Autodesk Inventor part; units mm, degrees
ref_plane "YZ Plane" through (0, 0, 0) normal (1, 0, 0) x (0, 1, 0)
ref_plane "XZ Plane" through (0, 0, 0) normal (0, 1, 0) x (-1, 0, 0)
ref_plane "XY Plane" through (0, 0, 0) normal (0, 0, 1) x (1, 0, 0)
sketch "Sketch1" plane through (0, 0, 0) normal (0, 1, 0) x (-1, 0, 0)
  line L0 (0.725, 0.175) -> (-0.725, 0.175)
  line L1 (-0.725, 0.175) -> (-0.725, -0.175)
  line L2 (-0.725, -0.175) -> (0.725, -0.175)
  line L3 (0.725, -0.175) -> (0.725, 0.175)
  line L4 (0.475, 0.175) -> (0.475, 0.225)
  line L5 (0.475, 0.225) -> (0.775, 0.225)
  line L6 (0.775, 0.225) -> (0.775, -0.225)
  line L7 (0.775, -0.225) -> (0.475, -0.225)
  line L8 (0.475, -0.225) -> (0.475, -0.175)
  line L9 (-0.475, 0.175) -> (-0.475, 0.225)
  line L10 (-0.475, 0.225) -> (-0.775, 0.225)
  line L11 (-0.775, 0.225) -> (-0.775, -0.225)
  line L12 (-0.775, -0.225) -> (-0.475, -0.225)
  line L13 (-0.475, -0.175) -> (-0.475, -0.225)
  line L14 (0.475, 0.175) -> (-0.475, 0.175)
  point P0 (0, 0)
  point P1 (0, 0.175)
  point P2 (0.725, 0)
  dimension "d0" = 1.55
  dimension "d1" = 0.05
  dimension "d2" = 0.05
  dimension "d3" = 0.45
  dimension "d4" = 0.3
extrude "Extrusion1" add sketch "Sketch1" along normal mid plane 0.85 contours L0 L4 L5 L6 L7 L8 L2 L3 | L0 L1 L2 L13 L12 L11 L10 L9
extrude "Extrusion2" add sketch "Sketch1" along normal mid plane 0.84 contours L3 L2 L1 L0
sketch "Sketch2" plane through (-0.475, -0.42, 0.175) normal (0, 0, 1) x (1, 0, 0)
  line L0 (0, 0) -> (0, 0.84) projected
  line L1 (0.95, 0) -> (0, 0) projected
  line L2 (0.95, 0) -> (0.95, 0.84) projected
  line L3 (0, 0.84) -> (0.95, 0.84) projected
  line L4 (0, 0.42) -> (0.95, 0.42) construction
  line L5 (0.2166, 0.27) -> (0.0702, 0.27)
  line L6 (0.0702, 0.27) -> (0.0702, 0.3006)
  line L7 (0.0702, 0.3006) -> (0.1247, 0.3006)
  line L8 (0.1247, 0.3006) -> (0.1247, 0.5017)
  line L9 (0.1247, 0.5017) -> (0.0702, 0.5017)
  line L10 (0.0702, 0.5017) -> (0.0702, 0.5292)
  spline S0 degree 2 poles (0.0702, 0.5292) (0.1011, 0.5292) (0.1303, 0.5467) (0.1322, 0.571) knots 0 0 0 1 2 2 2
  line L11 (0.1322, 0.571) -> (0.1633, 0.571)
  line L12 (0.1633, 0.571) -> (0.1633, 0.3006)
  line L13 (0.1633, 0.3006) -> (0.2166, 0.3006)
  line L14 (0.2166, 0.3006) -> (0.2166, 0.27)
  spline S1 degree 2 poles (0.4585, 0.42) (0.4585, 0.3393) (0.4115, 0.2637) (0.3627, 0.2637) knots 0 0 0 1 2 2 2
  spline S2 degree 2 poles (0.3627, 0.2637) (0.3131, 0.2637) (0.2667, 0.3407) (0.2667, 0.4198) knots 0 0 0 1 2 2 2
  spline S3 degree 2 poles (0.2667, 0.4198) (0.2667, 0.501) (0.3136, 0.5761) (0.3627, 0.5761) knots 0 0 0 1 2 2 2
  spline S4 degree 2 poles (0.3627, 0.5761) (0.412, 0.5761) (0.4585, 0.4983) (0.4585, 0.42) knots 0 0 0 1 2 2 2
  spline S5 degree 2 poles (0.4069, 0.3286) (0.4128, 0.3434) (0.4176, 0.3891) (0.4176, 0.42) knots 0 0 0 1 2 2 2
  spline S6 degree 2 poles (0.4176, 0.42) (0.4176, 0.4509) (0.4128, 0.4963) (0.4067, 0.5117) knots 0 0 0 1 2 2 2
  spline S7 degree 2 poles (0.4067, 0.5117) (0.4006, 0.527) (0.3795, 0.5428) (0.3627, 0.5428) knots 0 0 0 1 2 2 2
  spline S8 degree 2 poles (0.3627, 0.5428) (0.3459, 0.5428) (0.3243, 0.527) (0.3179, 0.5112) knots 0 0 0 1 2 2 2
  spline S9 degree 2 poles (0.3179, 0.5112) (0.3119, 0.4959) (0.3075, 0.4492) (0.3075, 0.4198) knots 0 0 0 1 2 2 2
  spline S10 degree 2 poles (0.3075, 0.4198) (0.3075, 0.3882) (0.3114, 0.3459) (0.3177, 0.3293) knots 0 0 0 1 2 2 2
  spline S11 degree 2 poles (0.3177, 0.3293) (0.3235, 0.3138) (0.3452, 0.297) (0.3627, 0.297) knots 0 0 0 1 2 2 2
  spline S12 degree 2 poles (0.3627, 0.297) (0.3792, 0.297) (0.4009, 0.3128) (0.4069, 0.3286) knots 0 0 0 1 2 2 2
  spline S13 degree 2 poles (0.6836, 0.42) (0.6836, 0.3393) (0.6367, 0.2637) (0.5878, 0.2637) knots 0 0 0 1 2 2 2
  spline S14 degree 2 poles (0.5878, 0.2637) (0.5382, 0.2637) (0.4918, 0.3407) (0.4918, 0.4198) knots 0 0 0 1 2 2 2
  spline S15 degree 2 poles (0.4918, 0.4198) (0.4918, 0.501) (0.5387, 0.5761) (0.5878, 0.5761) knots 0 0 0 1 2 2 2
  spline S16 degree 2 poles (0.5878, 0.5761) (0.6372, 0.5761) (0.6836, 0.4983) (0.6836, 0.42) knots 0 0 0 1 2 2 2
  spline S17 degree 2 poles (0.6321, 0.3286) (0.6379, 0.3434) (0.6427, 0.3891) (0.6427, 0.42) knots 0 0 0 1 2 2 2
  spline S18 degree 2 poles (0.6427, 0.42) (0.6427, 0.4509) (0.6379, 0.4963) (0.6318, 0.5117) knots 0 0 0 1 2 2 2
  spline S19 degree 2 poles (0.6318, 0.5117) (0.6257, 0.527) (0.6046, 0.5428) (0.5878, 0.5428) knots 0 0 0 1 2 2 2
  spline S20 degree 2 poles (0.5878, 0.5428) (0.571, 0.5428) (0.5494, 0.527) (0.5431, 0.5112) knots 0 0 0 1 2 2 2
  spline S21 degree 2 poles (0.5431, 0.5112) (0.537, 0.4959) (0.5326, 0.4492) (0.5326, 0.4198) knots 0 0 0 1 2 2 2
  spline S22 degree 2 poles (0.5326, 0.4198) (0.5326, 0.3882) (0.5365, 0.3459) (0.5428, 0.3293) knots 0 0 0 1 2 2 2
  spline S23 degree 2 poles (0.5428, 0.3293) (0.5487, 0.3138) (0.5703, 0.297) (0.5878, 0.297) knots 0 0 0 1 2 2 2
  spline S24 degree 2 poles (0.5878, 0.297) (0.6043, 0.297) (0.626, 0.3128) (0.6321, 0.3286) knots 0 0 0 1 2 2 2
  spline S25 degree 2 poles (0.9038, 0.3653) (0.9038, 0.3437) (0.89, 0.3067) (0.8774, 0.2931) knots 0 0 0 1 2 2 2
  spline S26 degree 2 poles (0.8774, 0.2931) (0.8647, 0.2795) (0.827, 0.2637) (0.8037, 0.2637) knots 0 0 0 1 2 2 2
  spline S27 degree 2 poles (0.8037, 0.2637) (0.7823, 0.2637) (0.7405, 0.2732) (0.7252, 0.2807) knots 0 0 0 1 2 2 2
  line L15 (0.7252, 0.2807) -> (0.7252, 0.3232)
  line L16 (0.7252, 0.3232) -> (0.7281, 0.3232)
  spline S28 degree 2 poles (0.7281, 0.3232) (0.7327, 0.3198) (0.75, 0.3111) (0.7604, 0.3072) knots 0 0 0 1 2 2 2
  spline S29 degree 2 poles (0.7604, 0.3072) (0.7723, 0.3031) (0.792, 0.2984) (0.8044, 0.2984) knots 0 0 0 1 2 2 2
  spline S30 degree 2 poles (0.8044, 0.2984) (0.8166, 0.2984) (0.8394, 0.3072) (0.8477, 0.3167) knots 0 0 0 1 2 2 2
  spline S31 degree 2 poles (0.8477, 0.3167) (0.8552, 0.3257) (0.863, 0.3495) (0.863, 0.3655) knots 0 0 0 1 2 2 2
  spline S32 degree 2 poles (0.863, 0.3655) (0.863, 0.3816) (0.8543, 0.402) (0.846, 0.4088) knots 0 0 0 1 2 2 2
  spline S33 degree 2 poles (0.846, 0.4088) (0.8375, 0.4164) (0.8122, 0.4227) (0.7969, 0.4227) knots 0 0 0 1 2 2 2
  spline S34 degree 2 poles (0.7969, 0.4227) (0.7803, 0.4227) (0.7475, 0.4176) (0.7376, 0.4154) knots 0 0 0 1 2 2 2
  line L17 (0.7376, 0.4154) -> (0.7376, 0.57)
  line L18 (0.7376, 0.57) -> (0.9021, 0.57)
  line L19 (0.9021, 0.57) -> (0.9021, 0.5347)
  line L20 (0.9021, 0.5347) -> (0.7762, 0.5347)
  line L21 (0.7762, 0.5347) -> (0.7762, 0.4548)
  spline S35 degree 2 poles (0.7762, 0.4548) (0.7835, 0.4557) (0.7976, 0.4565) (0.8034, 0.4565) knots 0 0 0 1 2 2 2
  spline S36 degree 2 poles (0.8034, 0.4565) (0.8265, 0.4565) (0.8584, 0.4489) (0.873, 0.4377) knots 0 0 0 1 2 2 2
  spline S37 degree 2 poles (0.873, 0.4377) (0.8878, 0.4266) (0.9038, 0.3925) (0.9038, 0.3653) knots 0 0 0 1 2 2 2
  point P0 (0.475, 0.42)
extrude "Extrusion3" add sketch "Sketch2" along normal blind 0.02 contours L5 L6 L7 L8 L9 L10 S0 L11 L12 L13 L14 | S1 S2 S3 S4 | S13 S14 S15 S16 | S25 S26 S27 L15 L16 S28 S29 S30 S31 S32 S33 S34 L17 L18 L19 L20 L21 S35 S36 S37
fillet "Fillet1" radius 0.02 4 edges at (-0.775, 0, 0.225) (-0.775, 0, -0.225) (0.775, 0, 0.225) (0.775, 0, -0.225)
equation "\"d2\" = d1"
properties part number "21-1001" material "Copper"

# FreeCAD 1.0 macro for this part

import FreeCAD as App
import Part
import Sketcher
from FreeCAD import Vector


def edges_at(feature, points):
    """Names of the edges that pass closest to the given points."""
    edges = feature.Shape.Edges
    near = lambda p: min(range(len(edges)), key=lambda i: edges[i].distToShape(Part.Vertex(*p))[0])
    return sorted({f"Edge{near(p) + 1}" for p in points})

doc = App.newDocument("Part")
body = doc.addObject("PartDesign::Body", "Body")
body.AllowCompound = True

# Sketch on XZ plane
sketch1 = body.newObject("Sketcher::SketchObject", "Sketch")
sketch1.AttachmentSupport = (doc.getObject("XZ_Plane"), [""])
sketch1.MapMode = "FlatFace"
sketch1.addGeometry(Part.LineSegment(Vector(-0.47, 0.17, 0), Vector(-0.72, 0.17, 0)), False)
sketch1.addGeometry(Part.LineSegment(Vector(-0.72, 0.17, 0), Vector(-0.72, -0.17, 0)), False)
sketch1.addGeometry(Part.LineSegment(Vector(-0.72, -0.17, 0), Vector(-0.47, -0.17, 0)), False)
sketch1.addGeometry(Part.LineSegment(Vector(-0.47, -0.17, 0), Vector(-0.47, -0.23, 0)), False)
sketch1.addGeometry(Part.LineSegment(Vector(-0.47, -0.23, 0), Vector(-0.78, -0.23, 0)), False)
sketch1.addGeometry(Part.LineSegment(Vector(-0.78, -0.23, 0), Vector(-0.78, 0.23, 0)), False)
sketch1.addGeometry(Part.LineSegment(Vector(-0.78, 0.23, 0), Vector(-0.47, 0.23, 0)), False)
sketch1.addGeometry(Part.LineSegment(Vector(-0.47, 0.23, 0), Vector(-0.47, 0.17, 0)), False)
sketch1.addGeometry(Part.LineSegment(Vector(0.72, 0.17, 0), Vector(0.47, 0.17, 0)), False)
sketch1.addGeometry(Part.LineSegment(Vector(0.47, 0.17, 0), Vector(0.47, 0.23, 0)), False)
sketch1.addGeometry(Part.LineSegment(Vector(0.47, 0.23, 0), Vector(0.78, 0.23, 0)), False)
sketch1.addGeometry(Part.LineSegment(Vector(0.78, 0.23, 0), Vector(0.78, -0.23, 0)), False)
sketch1.addGeometry(Part.LineSegment(Vector(0.78, -0.23, 0), Vector(0.47, -0.23, 0)), False)
sketch1.addGeometry(Part.LineSegment(Vector(0.47, -0.23, 0), Vector(0.47, -0.17, 0)), False)
sketch1.addGeometry(Part.LineSegment(Vector(0.47, -0.17, 0), Vector(0.72, -0.17, 0)), False)
sketch1.addGeometry(Part.LineSegment(Vector(0.72, -0.17, 0), Vector(0.72, 0.17, 0)), False)
sketch1.addConstraint(Sketcher.Constraint("Coincident", 0, 2, 1, 1))
sketch1.addConstraint(Sketcher.Constraint("Coincident", 1, 2, 2, 1))
sketch1.addConstraint(Sketcher.Constraint("Coincident", 2, 2, 3, 1))
sketch1.addConstraint(Sketcher.Constraint("Coincident", 3, 2, 4, 1))
sketch1.addConstraint(Sketcher.Constraint("Coincident", 4, 2, 5, 1))
sketch1.addConstraint(Sketcher.Constraint("Coincident", 5, 2, 6, 1))
sketch1.addConstraint(Sketcher.Constraint("Coincident", 6, 2, 7, 1))
sketch1.addConstraint(Sketcher.Constraint("Coincident", 7, 2, 0, 1))
sketch1.addConstraint(Sketcher.Constraint("Coincident", 8, 2, 9, 1))
sketch1.addConstraint(Sketcher.Constraint("Coincident", 9, 2, 10, 1))
sketch1.addConstraint(Sketcher.Constraint("Coincident", 10, 2, 11, 1))
sketch1.addConstraint(Sketcher.Constraint("Coincident", 11, 2, 12, 1))
sketch1.addConstraint(Sketcher.Constraint("Coincident", 12, 2, 13, 1))
sketch1.addConstraint(Sketcher.Constraint("Coincident", 13, 2, 14, 1))
sketch1.addConstraint(Sketcher.Constraint("Coincident", 14, 2, 15, 1))
sketch1.addConstraint(Sketcher.Constraint("Coincident", 15, 2, 8, 1))
sketch1.addConstraint(Sketcher.Constraint("Horizontal", 0))
sketch1.addConstraint(Sketcher.Constraint("Vertical", 1))
sketch1.addConstraint(Sketcher.Constraint("Horizontal", 2))
sketch1.addConstraint(Sketcher.Constraint("Vertical", 3))
sketch1.addConstraint(Sketcher.Constraint("Horizontal", 4))
sketch1.addConstraint(Sketcher.Constraint("Vertical", 5))
sketch1.addConstraint(Sketcher.Constraint("Horizontal", 6))
sketch1.addConstraint(Sketcher.Constraint("Vertical", 7))
sketch1.addConstraint(Sketcher.Constraint("Horizontal", 8))
sketch1.addConstraint(Sketcher.Constraint("Vertical", 9))
sketch1.addConstraint(Sketcher.Constraint("Horizontal", 10))
sketch1.addConstraint(Sketcher.Constraint("Vertical", 11))
sketch1.addConstraint(Sketcher.Constraint("Horizontal", 12))
sketch1.addConstraint(Sketcher.Constraint("Vertical", 13))
sketch1.addConstraint(Sketcher.Constraint("Horizontal", 14))
sketch1.addConstraint(Sketcher.Constraint("Vertical", 15))
sketch1.addConstraint(Sketcher.Constraint("Symmetric", 2, 2, 8, 2, -1, 1))
sketch1.addConstraint(Sketcher.Constraint("Symmetric", 4, 2, 10, 2, -1, 1))
sketch1.addConstraint(Sketcher.Constraint("Symmetric", 6, 2, 12, 2, -1, 1))
sketch1.addConstraint(Sketcher.Constraint("Symmetric", 0, 2, 14, 2, -1, 1))
sketch1.addConstraint(Sketcher.Constraint("Symmetric", 7, 2, 8, 2, -2))
sketch1.addConstraint(Sketcher.Constraint("Horizontal", 6, 2, 9, 2))
sketch1.addConstraint(Sketcher.Constraint("DistanceX", 4, 2, 4, 1, 0.3))
sketch1.addConstraint(Sketcher.Constraint("DistanceY", 3, 2, 3, 1, 0.05))
sketch1.addConstraint(Sketcher.Constraint("DistanceY", 5, 1, 5, 2, 0.45))
sketch1.addConstraint(Sketcher.Constraint("DistanceX", 4, 2, 1, 2, 0.05))
sketch1.addConstraint(Sketcher.Constraint("DistanceX", 0, 2, 8, 2, 1.2))
pad1 = body.newObject("PartDesign::Pad", "Pad")
pad1.Profile = sketch1
pad1.Length = 0.85
pad1.Midplane = True

# Sketch on XZ plane
sketch2 = body.newObject("Sketcher::SketchObject", "Sketch001")
sketch2.AttachmentSupport = (doc.getObject("XZ_Plane"), [""])
sketch2.MapMode = "FlatFace"
sketch2.addGeometry(Part.LineSegment(Vector(-0.72, -0.17, 0), Vector(-0.72, 0.17, 0)), False)
sketch2.addGeometry(Part.LineSegment(Vector(-0.72, 0.17, 0), Vector(0.72, 0.17, 0)), False)
sketch2.addGeometry(Part.LineSegment(Vector(0.72, 0.17, 0), Vector(0.72, -0.17, 0)), False)
sketch2.addGeometry(Part.LineSegment(Vector(0.72, -0.17, 0), Vector(-0.72, -0.17, 0)), False)
sketch2.addConstraint(Sketcher.Constraint("Coincident", 0, 2, 1, 1))
sketch2.addConstraint(Sketcher.Constraint("Coincident", 1, 2, 2, 1))
sketch2.addConstraint(Sketcher.Constraint("Coincident", 2, 2, 3, 1))
sketch2.addConstraint(Sketcher.Constraint("Coincident", 3, 2, 0, 1))
sketch2.addConstraint(Sketcher.Constraint("Vertical", 0))
sketch2.addConstraint(Sketcher.Constraint("Horizontal", 1))
sketch2.addConstraint(Sketcher.Constraint("Vertical", 2))
sketch2.addConstraint(Sketcher.Constraint("Horizontal", 3))
sketch2.addConstraint(Sketcher.Constraint("Symmetric", 0, 2, 2, 2, -1, 1))
sketch2.addConstraint(Sketcher.Constraint("DistanceX", 1, 1, 1, 2, 1.45))
sketch2.addConstraint(Sketcher.Constraint("DistanceY", 0, 1, 0, 2, 0.35))
pad2 = body.newObject("PartDesign::Pad", "Pad001")
pad2.Profile = sketch2
pad2.Length = 0.84
pad2.Midplane = True

# Sketch on XY plane
sketch3 = body.newObject("Sketcher::SketchObject", "Sketch002")
sketch3.AttachmentSupport = (doc.getObject("XY_Plane"), [""])
sketch3.MapMode = "FlatFace"
sketch3.AttachmentOffset = App.Placement(Vector(0, 0, 0.175), App.Rotation())
sketch3.addGeometry(Part.LineSegment(Vector(-0.4048, -0.15, 0), Vector(-0.2584, -0.15, 0)), False)
sketch3.addGeometry(Part.LineSegment(Vector(-0.2584, -0.15, 0), Vector(-0.2584, -0.1194, 0)), False)
sketch3.addGeometry(Part.LineSegment(Vector(-0.2584, -0.1194, 0), Vector(-0.3117, -0.1194, 0)), False)
sketch3.addGeometry(Part.LineSegment(Vector(-0.3117, -0.1194, 0), Vector(-0.3117, 0.151, 0)), False)
sketch3.addGeometry(Part.LineSegment(Vector(-0.3117, 0.151, 0), Vector(-0.3428, 0.151, 0)), False)
sketch3.addGeometry(Part.BSplineCurve([Vector(-0.4048, 0.1092, 0), Vector(-0.3739, 0.1092, 0), Vector(-0.3447, 0.1267, 0), Vector(-0.3428, 0.151, 0)], [3, 1, 3], [0, 1, 2], False, 2, [1, 1, 1, 1], False), False)
sketch3.addGeometry(Part.LineSegment(Vector(-0.4048, 0.1092, 0), Vector(-0.4048, 0.0817, 0)), False)
sketch3.addGeometry(Part.LineSegment(Vector(-0.4048, 0.0817, 0), Vector(-0.3503, 0.0817, 0)), False)
sketch3.addGeometry(Part.LineSegment(Vector(-0.3503, 0.0817, 0), Vector(-0.3503, -0.1194, 0)), False)
sketch3.addGeometry(Part.LineSegment(Vector(-0.3503, -0.1194, 0), Vector(-0.4048, -0.1194, 0)), False)
sketch3.addGeometry(Part.LineSegment(Vector(-0.4048, -0.1194, 0), Vector(-0.4048, -0.15, 0)), False)
sketch3.addGeometry(Part.BSplineCurve([Vector(-0.0165, 0, 0), Vector(-0.0165, -0.0807, 0), Vector(-0.0635, -0.1563, 0), Vector(-0.1123, -0.1563, 0)], [3, 1, 3], [0, 1, 2], False, 2, [1, 1, 1, 1], False), False)
sketch3.addGeometry(Part.BSplineCurve([Vector(-0.1123, 0.1561, 0), Vector(-0.063, 0.1561, 0), Vector(-0.0165, 0.0783, 0), Vector(-0.0165, 0, 0)], [3, 1, 3], [0, 1, 2], False, 2, [1, 1, 1, 1], False), False)
sketch3.addGeometry(Part.BSplineCurve([Vector(-0.2083, -0.0002, 0), Vector(-0.2083, 0.081, 0), Vector(-0.1614, 0.1561, 0), Vector(-0.1123, 0.1561, 0)], [3, 1, 3], [0, 1, 2], False, 2, [1, 1, 1, 1], False), False)
sketch3.addGeometry(Part.BSplineCurve([Vector(-0.1123, -0.1563, 0), Vector(-0.1619, -0.1563, 0), Vector(-0.2083, -0.0793, 0), Vector(-0.2083, -0.0002, 0)], [3, 1, 3], [0, 1, 2], False, 2, [1, 1, 1, 1], False), False)
sketch3.addGeometry(Part.BSplineCurve([Vector(-0.0681, -0.0914, 0), Vector(-0.0622, -0.0766, 0), Vector(-0.0574, -0.0309, 0), Vector(-0.0574, 0, 0)], [3, 1, 3], [0, 1, 2], False, 2, [1, 1, 1, 1], False), False)
sketch3.addGeometry(Part.BSplineCurve([Vector(-0.1123, -0.123, 0), Vector(-0.0958, -0.123, 0), Vector(-0.0741, -0.1072, 0), Vector(-0.0681, -0.0914, 0)], [3, 1, 3], [0, 1, 2], False, 2, [1, 1, 1, 1], False), False)
sketch3.addGeometry(Part.BSplineCurve([Vector(-0.1573, -0.0907, 0), Vector(-0.1515, -0.1062, 0), Vector(-0.1298, -0.123, 0), Vector(-0.1123, -0.123, 0)], [3, 1, 3], [0, 1, 2], False, 2, [1, 1, 1, 1], False), False)
sketch3.addGeometry(Part.BSplineCurve([Vector(-0.1675, -0.0002, 0), Vector(-0.1675, -0.0318, 0), Vector(-0.1636, -0.0741, 0), Vector(-0.1573, -0.0907, 0)], [3, 1, 3], [0, 1, 2], False, 2, [1, 1, 1, 1], False), False)
sketch3.addGeometry(Part.BSplineCurve([Vector(-0.1571, 0.0912, 0), Vector(-0.1631, 0.0759, 0), Vector(-0.1675, 0.0292, 0), Vector(-0.1675, -0.0002, 0)], [3, 1, 3], [0, 1, 2], False, 2, [1, 1, 1, 1], False), False)
sketch3.addGeometry(Part.BSplineCurve([Vector(-0.1123, 0.1228, 0), Vector(-0.1291, 0.1228, 0), Vector(-0.1507, 0.107, 0), Vector(-0.1571, 0.0912, 0)], [3, 1, 3], [0, 1, 2], False, 2, [1, 1, 1, 1], False), False)
sketch3.addGeometry(Part.BSplineCurve([Vector(-0.0683, 0.0917, 0), Vector(-0.0744, 0.107, 0), Vector(-0.0955, 0.1228, 0), Vector(-0.1123, 0.1228, 0)], [3, 1, 3], [0, 1, 2], False, 2, [1, 1, 1, 1], False), False)
sketch3.addGeometry(Part.BSplineCurve([Vector(-0.0574, 0, 0), Vector(-0.0574, 0.0309, 0), Vector(-0.0622, 0.0763, 0), Vector(-0.0683, 0.0917, 0)], [3, 1, 3], [0, 1, 2], False, 2, [1, 1, 1, 1], False), False)
sketch3.addGeometry(Part.BSplineCurve([Vector(0.2086, 0, 0), Vector(0.2086, -0.0807, 0), Vector(0.1617, -0.1563, 0), Vector(0.1128, -0.1563, 0)], [3, 1, 3], [0, 1, 2], False, 2, [1, 1, 1, 1], False), False)
sketch3.addGeometry(Part.BSplineCurve([Vector(0.1128, 0.1561, 0), Vector(0.1622, 0.1561, 0), Vector(0.2086, 0.0783, 0), Vector(0.2086, 0, 0)], [3, 1, 3], [0, 1, 2], False, 2, [1, 1, 1, 1], False), False)
sketch3.addGeometry(Part.BSplineCurve([Vector(0.0168, -0.0002, 0), Vector(0.0168, 0.081, 0), Vector(0.0637, 0.1561, 0), Vector(0.1128, 0.1561, 0)], [3, 1, 3], [0, 1, 2], False, 2, [1, 1, 1, 1], False), False)
sketch3.addGeometry(Part.BSplineCurve([Vector(0.1128, -0.1563, 0), Vector(0.0632, -0.1563, 0), Vector(0.0168, -0.0793, 0), Vector(0.0168, -0.0002, 0)], [3, 1, 3], [0, 1, 2], False, 2, [1, 1, 1, 1], False), False)
sketch3.addGeometry(Part.BSplineCurve([Vector(0.1571, -0.0914, 0), Vector(0.1629, -0.0766, 0), Vector(0.1677, -0.0309, 0), Vector(0.1677, 0, 0)], [3, 1, 3], [0, 1, 2], False, 2, [1, 1, 1, 1], False), False)
sketch3.addGeometry(Part.BSplineCurve([Vector(0.1128, -0.123, 0), Vector(0.1293, -0.123, 0), Vector(0.151, -0.1072, 0), Vector(0.1571, -0.0914, 0)], [3, 1, 3], [0, 1, 2], False, 2, [1, 1, 1, 1], False), False)
sketch3.addGeometry(Part.BSplineCurve([Vector(0.0678, -0.0907, 0), Vector(0.0737, -0.1062, 0), Vector(0.0953, -0.123, 0), Vector(0.1128, -0.123, 0)], [3, 1, 3], [0, 1, 2], False, 2, [1, 1, 1, 1], False), False)
sketch3.addGeometry(Part.BSplineCurve([Vector(0.0576, -0.0002, 0), Vector(0.0576, -0.0318, 0), Vector(0.0615, -0.0741, 0), Vector(0.0678, -0.0907, 0)], [3, 1, 3], [0, 1, 2], False, 2, [1, 1, 1, 1], False), False)
sketch3.addGeometry(Part.BSplineCurve([Vector(0.0681, 0.0912, 0), Vector(0.062, 0.0759, 0), Vector(0.0576, 0.0292, 0), Vector(0.0576, -0.0002, 0)], [3, 1, 3], [0, 1, 2], False, 2, [1, 1, 1, 1], False), False)
sketch3.addGeometry(Part.BSplineCurve([Vector(0.1128, 0.1228, 0), Vector(0.096, 0.1228, 0), Vector(0.0744, 0.107, 0), Vector(0.0681, 0.0912, 0)], [3, 1, 3], [0, 1, 2], False, 2, [1, 1, 1, 1], False), False)
sketch3.addGeometry(Part.BSplineCurve([Vector(0.1568, 0.0917, 0), Vector(0.1507, 0.107, 0), Vector(0.1296, 0.1228, 0), Vector(0.1128, 0.1228, 0)], [3, 1, 3], [0, 1, 2], False, 2, [1, 1, 1, 1], False), False)
sketch3.addGeometry(Part.BSplineCurve([Vector(0.1677, 0, 0), Vector(0.1677, 0.0309, 0), Vector(0.1629, 0.0763, 0), Vector(0.1568, 0.0917, 0)], [3, 1, 3], [0, 1, 2], False, 2, [1, 1, 1, 1], False), False)
sketch3.addGeometry(Part.BSplineCurve([Vector(0.4288, -0.0547, 0), Vector(0.4288, -0.0763, 0), Vector(0.415, -0.1133, 0), Vector(0.4024, -0.1269, 0)], [3, 1, 3], [0, 1, 2], False, 2, [1, 1, 1, 1], False), False)
sketch3.addGeometry(Part.BSplineCurve([Vector(0.398, 0.0177, 0), Vector(0.4128, 0.0066, 0), Vector(0.4288, -0.0275, 0), Vector(0.4288, -0.0547, 0)], [3, 1, 3], [0, 1, 2], False, 2, [1, 1, 1, 1], False), False)
sketch3.addGeometry(Part.BSplineCurve([Vector(0.3284, 0.0365, 0), Vector(0.3515, 0.0365, 0), Vector(0.3834, 0.0289, 0), Vector(0.398, 0.0177, 0)], [3, 1, 3], [0, 1, 2], False, 2, [1, 1, 1, 1], False), False)
sketch3.addGeometry(Part.BSplineCurve([Vector(0.3012, 0.0348, 0), Vector(0.3085, 0.0357, 0), Vector(0.3226, 0.0365, 0), Vector(0.3284, 0.0365, 0)], [3, 1, 3], [0, 1, 2], False, 2, [1, 1, 1, 1], False), False)
sketch3.addGeometry(Part.LineSegment(Vector(0.3012, 0.0348, 0), Vector(0.3012, 0.1147, 0)), False)
sketch3.addGeometry(Part.LineSegment(Vector(0.3012, 0.1147, 0), Vector(0.4271, 0.1147, 0)), False)
sketch3.addGeometry(Part.LineSegment(Vector(0.4271, 0.1147, 0), Vector(0.4271, 0.15, 0)), False)
sketch3.addGeometry(Part.LineSegment(Vector(0.4271, 0.15, 0), Vector(0.2626, 0.15, 0)), False)
sketch3.addGeometry(Part.LineSegment(Vector(0.2626, 0.15, 0), Vector(0.2626, -0.0046, 0)), False)
sketch3.addGeometry(Part.BSplineCurve([Vector(0.3219, 0.0027, 0), Vector(0.3053, 0.0027, 0), Vector(0.2725, -0.0024, 0), Vector(0.2626, -0.0046, 0)], [3, 1, 3], [0, 1, 2], False, 2, [1, 1, 1, 1], False), False)
sketch3.addGeometry(Part.BSplineCurve([Vector(0.371, -0.0112, 0), Vector(0.3625, -0.0036, 0), Vector(0.3372, 0.0027, 0), Vector(0.3219, 0.0027, 0)], [3, 1, 3], [0, 1, 2], False, 2, [1, 1, 1, 1], False), False)
sketch3.addGeometry(Part.BSplineCurve([Vector(0.388, -0.0545, 0), Vector(0.388, -0.0384, 0), Vector(0.3793, -0.018, 0), Vector(0.371, -0.0112, 0)], [3, 1, 3], [0, 1, 2], False, 2, [1, 1, 1, 1], False), False)
sketch3.addGeometry(Part.BSplineCurve([Vector(0.3727, -0.1033, 0), Vector(0.3802, -0.0943, 0), Vector(0.388, -0.0705, 0), Vector(0.388, -0.0545, 0)], [3, 1, 3], [0, 1, 2], False, 2, [1, 1, 1, 1], False), False)
sketch3.addGeometry(Part.BSplineCurve([Vector(0.3294, -0.1216, 0), Vector(0.3416, -0.1216, 0), Vector(0.3644, -0.1128, 0), Vector(0.3727, -0.1033, 0)], [3, 1, 3], [0, 1, 2], False, 2, [1, 1, 1, 1], False), False)
sketch3.addGeometry(Part.BSplineCurve([Vector(0.2854, -0.1128, 0), Vector(0.2973, -0.1169, 0), Vector(0.317, -0.1216, 0), Vector(0.3294, -0.1216, 0)], [3, 1, 3], [0, 1, 2], False, 2, [1, 1, 1, 1], False), False)
sketch3.addGeometry(Part.BSplineCurve([Vector(0.2531, -0.0968, 0), Vector(0.2577, -0.1002, 0), Vector(0.275, -0.1089, 0), Vector(0.2854, -0.1128, 0)], [3, 1, 3], [0, 1, 2], False, 2, [1, 1, 1, 1], False), False)
sketch3.addGeometry(Part.LineSegment(Vector(0.2531, -0.0968, 0), Vector(0.2502, -0.0968, 0)), False)
sketch3.addGeometry(Part.LineSegment(Vector(0.2502, -0.0968, 0), Vector(0.2502, -0.1393, 0)), False)
sketch3.addGeometry(Part.BSplineCurve([Vector(0.3287, -0.1563, 0), Vector(0.3073, -0.1563, 0), Vector(0.2655, -0.1468, 0), Vector(0.2502, -0.1393, 0)], [3, 1, 3], [0, 1, 2], False, 2, [1, 1, 1, 1], False), False)
sketch3.addGeometry(Part.BSplineCurve([Vector(0.4024, -0.1269, 0), Vector(0.3897, -0.1405, 0), Vector(0.352, -0.1563, 0), Vector(0.3287, -0.1563, 0)], [3, 1, 3], [0, 1, 2], False, 2, [1, 1, 1, 1], False), False)
sketch3.addConstraint(Sketcher.Constraint("Block", 5))
sketch3.addConstraint(Sketcher.Constraint("Block", 11))
sketch3.addConstraint(Sketcher.Constraint("Block", 12))
sketch3.addConstraint(Sketcher.Constraint("Block", 13))
sketch3.addConstraint(Sketcher.Constraint("Block", 14))
sketch3.addConstraint(Sketcher.Constraint("Block", 15))
sketch3.addConstraint(Sketcher.Constraint("Block", 16))
sketch3.addConstraint(Sketcher.Constraint("Block", 17))
sketch3.addConstraint(Sketcher.Constraint("Block", 18))
sketch3.addConstraint(Sketcher.Constraint("Block", 19))
sketch3.addConstraint(Sketcher.Constraint("Block", 20))
sketch3.addConstraint(Sketcher.Constraint("Block", 21))
sketch3.addConstraint(Sketcher.Constraint("Block", 22))
sketch3.addConstraint(Sketcher.Constraint("Block", 23))
sketch3.addConstraint(Sketcher.Constraint("Block", 24))
sketch3.addConstraint(Sketcher.Constraint("Block", 25))
sketch3.addConstraint(Sketcher.Constraint("Block", 26))
sketch3.addConstraint(Sketcher.Constraint("Block", 27))
sketch3.addConstraint(Sketcher.Constraint("Block", 28))
sketch3.addConstraint(Sketcher.Constraint("Block", 29))
sketch3.addConstraint(Sketcher.Constraint("Block", 30))
sketch3.addConstraint(Sketcher.Constraint("Block", 31))
sketch3.addConstraint(Sketcher.Constraint("Block", 32))
sketch3.addConstraint(Sketcher.Constraint("Block", 33))
sketch3.addConstraint(Sketcher.Constraint("Block", 34))
sketch3.addConstraint(Sketcher.Constraint("Block", 35))
sketch3.addConstraint(Sketcher.Constraint("Block", 36))
sketch3.addConstraint(Sketcher.Constraint("Block", 37))
sketch3.addConstraint(Sketcher.Constraint("Block", 38))
sketch3.addConstraint(Sketcher.Constraint("Block", 44))
sketch3.addConstraint(Sketcher.Constraint("Block", 45))
sketch3.addConstraint(Sketcher.Constraint("Block", 46))
sketch3.addConstraint(Sketcher.Constraint("Block", 47))
sketch3.addConstraint(Sketcher.Constraint("Block", 48))
sketch3.addConstraint(Sketcher.Constraint("Block", 49))
sketch3.addConstraint(Sketcher.Constraint("Block", 50))
sketch3.addConstraint(Sketcher.Constraint("Block", 53))
sketch3.addConstraint(Sketcher.Constraint("Block", 54))
sketch3.addConstraint(Sketcher.Constraint("Coincident", 0, 2, 1, 1))
sketch3.addConstraint(Sketcher.Constraint("Coincident", 1, 2, 2, 1))
sketch3.addConstraint(Sketcher.Constraint("Coincident", 2, 2, 3, 1))
sketch3.addConstraint(Sketcher.Constraint("Coincident", 3, 2, 4, 1))
sketch3.addConstraint(Sketcher.Constraint("Coincident", 4, 2, 5, 2))
sketch3.addConstraint(Sketcher.Constraint("Coincident", 5, 1, 6, 1))
sketch3.addConstraint(Sketcher.Constraint("Coincident", 6, 2, 7, 1))
sketch3.addConstraint(Sketcher.Constraint("Coincident", 7, 2, 8, 1))
sketch3.addConstraint(Sketcher.Constraint("Coincident", 8, 2, 9, 1))
sketch3.addConstraint(Sketcher.Constraint("Coincident", 9, 2, 10, 1))
sketch3.addConstraint(Sketcher.Constraint("Coincident", 10, 2, 0, 1))
sketch3.addConstraint(Sketcher.Constraint("Coincident", 38, 1, 39, 1))
sketch3.addConstraint(Sketcher.Constraint("Coincident", 39, 2, 40, 1))
sketch3.addConstraint(Sketcher.Constraint("Coincident", 40, 2, 41, 1))
sketch3.addConstraint(Sketcher.Constraint("Coincident", 41, 2, 42, 1))
sketch3.addConstraint(Sketcher.Constraint("Coincident", 42, 2, 43, 1))
sketch3.addConstraint(Sketcher.Constraint("Coincident", 43, 2, 44, 2))
sketch3.addConstraint(Sketcher.Constraint("Coincident", 50, 1, 51, 1))
sketch3.addConstraint(Sketcher.Constraint("Coincident", 51, 2, 52, 1))
sketch3.addConstraint(Sketcher.Constraint("Coincident", 52, 2, 53, 2))
sketch3.addConstraint(Sketcher.Constraint("Horizontal", 0))
sketch3.addConstraint(Sketcher.Constraint("Vertical", 1))
sketch3.addConstraint(Sketcher.Constraint("Horizontal", 2))
sketch3.addConstraint(Sketcher.Constraint("Vertical", 3))
sketch3.addConstraint(Sketcher.Constraint("Horizontal", 4))
sketch3.addConstraint(Sketcher.Constraint("Vertical", 6))
sketch3.addConstraint(Sketcher.Constraint("Horizontal", 7))
sketch3.addConstraint(Sketcher.Constraint("Vertical", 8))
sketch3.addConstraint(Sketcher.Constraint("Horizontal", 9))
sketch3.addConstraint(Sketcher.Constraint("Vertical", 10))
sketch3.addConstraint(Sketcher.Constraint("Vertical", 39))
sketch3.addConstraint(Sketcher.Constraint("Horizontal", 40))
sketch3.addConstraint(Sketcher.Constraint("Vertical", 41))
sketch3.addConstraint(Sketcher.Constraint("Horizontal", 42))
sketch3.addConstraint(Sketcher.Constraint("Vertical", 43))
sketch3.addConstraint(Sketcher.Constraint("Horizontal", 51))
sketch3.addConstraint(Sketcher.Constraint("Vertical", 52))
sketch3.addConstraint(Sketcher.Constraint("Horizontal", 2, 2, 8, 2))
sketch3.addConstraint(Sketcher.Constraint("Vertical", 6, 2, 9, 2))
sketch3.addConstraint(Sketcher.Constraint("DistanceY", 39, 1, 39, 2, 0.08))
sketch3.addConstraint(Sketcher.Constraint("DistanceY", 0, 2, 41, 2, 0.3))
sketch3.addConstraint(Sketcher.Constraint("DistanceX", 4, 2, 4, 1, 0.031))
sketch3.addConstraint(Sketcher.Constraint("DistanceX", 40, 1, 40, 2, 0.126))
sketch3.addConstraint(Sketcher.Constraint("DistanceY", 8, 2, 8, 1, 0.201))
sketch3.addConstraint(Sketcher.Constraint("DistanceY", 0, 2, -1, 1, 0.15))
sketch3.addConstraint(Sketcher.Constraint("DistanceX", 0, 1, 0, 2, 0.1464))
sketch3.addConstraint(Sketcher.Constraint("DistanceX", 7, 1, 7, 2, 0.0545))
sketch3.addConstraint(Sketcher.Constraint("DistanceY", 1, 1, 1, 2, 0.0306))
pad3 = body.newObject("PartDesign::Pad", "Pad002")
pad3.Profile = sketch3
pad3.Length = 0.02
doc.recompute()

fillet = body.newObject("PartDesign::Fillet", "Fillet")
fillet.Base = (pad3, edges_at(pad3, [
    (-0.775, 0, 0.225),
    (-0.775, 0, -0.225),
    (0.775, 0, 0.225),
    (0.775, 0, -0.225),
]))
fillet.Radius = 0.02

doc.recompute()
